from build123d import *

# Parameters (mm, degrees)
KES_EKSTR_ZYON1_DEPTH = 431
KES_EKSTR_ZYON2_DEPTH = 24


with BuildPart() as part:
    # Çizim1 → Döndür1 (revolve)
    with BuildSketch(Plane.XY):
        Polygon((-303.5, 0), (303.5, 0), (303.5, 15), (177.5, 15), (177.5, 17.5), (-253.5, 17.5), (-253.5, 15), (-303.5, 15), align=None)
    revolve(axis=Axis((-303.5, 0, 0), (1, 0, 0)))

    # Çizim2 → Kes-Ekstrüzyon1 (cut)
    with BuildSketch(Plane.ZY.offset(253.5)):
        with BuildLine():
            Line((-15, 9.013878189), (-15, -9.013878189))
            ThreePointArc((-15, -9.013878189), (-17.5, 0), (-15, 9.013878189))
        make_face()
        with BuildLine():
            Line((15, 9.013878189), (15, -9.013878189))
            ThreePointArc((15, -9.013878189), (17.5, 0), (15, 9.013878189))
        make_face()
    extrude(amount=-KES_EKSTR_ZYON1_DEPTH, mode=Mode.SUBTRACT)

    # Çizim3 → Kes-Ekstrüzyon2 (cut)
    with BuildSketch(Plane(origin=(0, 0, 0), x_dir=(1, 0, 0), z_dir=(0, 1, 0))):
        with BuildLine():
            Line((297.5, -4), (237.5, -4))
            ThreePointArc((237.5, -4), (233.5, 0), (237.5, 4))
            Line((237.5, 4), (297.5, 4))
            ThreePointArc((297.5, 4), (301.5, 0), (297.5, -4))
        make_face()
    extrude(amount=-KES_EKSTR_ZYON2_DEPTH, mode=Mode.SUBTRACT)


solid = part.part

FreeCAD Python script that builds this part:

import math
import FreeCAD as App
import Part
import Sketcher
from FreeCAD import Vector
Q = App.Units.Quantity


def add_polygon(sketch, points):
    """Adds a closed chain of lines whose ends are joined by coincident constraints."""
    first, n = sketch.GeometryCount, len(points)
    for a, b in zip(points, points[1:] + points[:1]):
        sketch.addGeometry(Part.LineSegment(App.Vector(*a, 0), App.Vector(*b, 0)), False)
    for i in range(n):
        sketch.addConstraint(Sketcher.Constraint("Coincident", first + i, 2, first + (i + 1) % n, 1))

doc = App.newDocument("Part")
body = doc.addObject("PartDesign::Body", "Body")

# Sketch on XY plane
sketch1 = body.newObject("Sketcher::SketchObject", "Sketch")
sketch1.AttachmentSupport = (doc.getObject("XY_Plane"), [""])
sketch1.MapMode = "FlatFace"
add_polygon(sketch1, [(-303.5, 0), (303.5, 0), (303.5, 15), (177.5, 15), (177.5, 17.5), (-253.5, 17.5), (-253.5, 15), (-303.5, 15)])  # lines 0-7
sketch1.addConstraint([
    Sketcher.Constraint("Horizontal", 0),
    Sketcher.Constraint("Vertical", 1),
    Sketcher.Constraint("Horizontal", 2),
    Sketcher.Constraint("Vertical", 3),
    Sketcher.Constraint("Horizontal", 4),
    Sketcher.Constraint("Vertical", 5),
    Sketcher.Constraint("Horizontal", 6),
    Sketcher.Constraint("Vertical", 7),
    Sketcher.Constraint("Symmetric", 0, 2, 7, 2, -1, 1),
    Sketcher.Constraint("Horizontal", 2, 2, 5, 2),
    Sketcher.Constraint("DistanceX", 0, 1, 0, 2, Q("607 mm")),
    Sketcher.Constraint("DistanceX", 2, 2, 2, 1, Q("126 mm")),
    Sketcher.Constraint("DistanceX", 4, 2, 4, 1, Q("431 mm")),
    Sketcher.Constraint("DistanceY", 1, 1, 1, 2, Q("15 mm")),
    Sketcher.Constraint("DistanceY", 3, 1, 3, 2, Q("2.5 mm")),
])
revolution = body.newObject("PartDesign::Revolution", "Revolution")
revolution.Profile = sketch1
revolution.ReferenceAxis = (sketch1, ["H_Axis"])
revolution.Angle = 360

# Sketch on YZ plane
sketch2 = body.newObject("Sketcher::SketchObject", "Sketch001")
sketch2.AttachmentSupport = (doc.getObject("YZ_Plane"), [""])
sketch2.MapMode = "FlatFace"
sketch2.AttachmentOffset = App.Placement(Vector(0, 0, -253.5), App.Rotation())
sketch2.addGeometry([
    Part.LineSegment(Vector(-9, -15, 0), Vector(9, -15, 0)),
    Part.ArcOfCircle(Part.Circle(Vector(0, 0, 0), Vector(0, 0, 1), 18), math.radians(-121), math.radians(-59)),
    Part.LineSegment(Vector(9, 15, 0), Vector(-9, 15, 0)),
    Part.ArcOfCircle(Part.Circle(Vector(0, 0, 0), Vector(0, 0, 1), 18), math.radians(59), math.radians(121)),
], False)
sketch2.addConstraint([
    Sketcher.Constraint("Coincident", 0, 1, 1, 1),
    Sketcher.Constraint("Coincident", 1, 2, 0, 2),
    Sketcher.Constraint("Coincident", 2, 1, 3, 1),
    Sketcher.Constraint("Coincident", 3, 2, 2, 2),
    Sketcher.Constraint("Horizontal", 0),
    Sketcher.Constraint("Horizontal", 2),
    Sketcher.Constraint("Coincident", 1, 3, -1, 1),
    Sketcher.Constraint("Coincident", 3, 3, -1, 1),
    Sketcher.Constraint("Equal", 1, 3),
    Sketcher.Constraint("Vertical", 1, 2, 2, 1),
    Sketcher.Constraint("Radius", 1, Q("17.5 mm")),
    Sketcher.Constraint("DistanceY", 0, 1, -1, 1, Q("15 mm")),
])
pocket1 = body.newObject("PartDesign::Pocket", "Pocket")
pocket1.Profile = sketch2
pocket1.Length = 431
pocket1.Reversed = True

# Sketch on XZ plane
sketch3 = body.newObject("Sketcher::SketchObject", "Sketch002")
sketch3.AttachmentSupport = (doc.getObject("XZ_Plane"), [""])
sketch3.MapMode = "FlatFace"
sketch3.addGeometry([
    Part.LineSegment(Vector(237.5, 4, 0), Vector(297.5, 4, 0)),
    Part.ArcOfCircle(Part.Circle(Vector(297.5, 0, 0), Vector(0, 0, 1), 4), math.radians(-90), math.radians(90)),
    Part.LineSegment(Vector(297.5, -4, 0), Vector(237.5, -4, 0)),
    Part.ArcOfCircle(Part.Circle(Vector(237.5, 0, 0), Vector(0, 0, 1), 4), math.radians(90), math.radians(270)),
], False)
sketch3.addConstraint([
    Sketcher.Constraint("Tangent", 0, 2, 1, 2),
    Sketcher.Constraint("Tangent", 1, 1, 2, 1),
    Sketcher.Constraint("Tangent", 2, 2, 3, 2),
    Sketcher.Constraint("Tangent", 3, 1, 0, 1),
    Sketcher.Constraint("Horizontal", 0),
    Sketcher.Constraint("Horizontal", 2),
    Sketcher.Constraint("PointOnObject", 1, 3, -1),
    Sketcher.Constraint("Radius", 1, Q("4 mm")),
    Sketcher.Constraint("DistanceX", 0, 1, 0, 2, Q("60 mm")),
    Sketcher.Constraint("DistanceX", -1, 1, 1, 3, Q("297.5 mm")),
])
pocket2 = body.newObject("PartDesign::Pocket", "Pocket001")
pocket2.Profile = sketch3
pocket2.Length = 24
pocket2.Reversed = True

doc.recompute()
